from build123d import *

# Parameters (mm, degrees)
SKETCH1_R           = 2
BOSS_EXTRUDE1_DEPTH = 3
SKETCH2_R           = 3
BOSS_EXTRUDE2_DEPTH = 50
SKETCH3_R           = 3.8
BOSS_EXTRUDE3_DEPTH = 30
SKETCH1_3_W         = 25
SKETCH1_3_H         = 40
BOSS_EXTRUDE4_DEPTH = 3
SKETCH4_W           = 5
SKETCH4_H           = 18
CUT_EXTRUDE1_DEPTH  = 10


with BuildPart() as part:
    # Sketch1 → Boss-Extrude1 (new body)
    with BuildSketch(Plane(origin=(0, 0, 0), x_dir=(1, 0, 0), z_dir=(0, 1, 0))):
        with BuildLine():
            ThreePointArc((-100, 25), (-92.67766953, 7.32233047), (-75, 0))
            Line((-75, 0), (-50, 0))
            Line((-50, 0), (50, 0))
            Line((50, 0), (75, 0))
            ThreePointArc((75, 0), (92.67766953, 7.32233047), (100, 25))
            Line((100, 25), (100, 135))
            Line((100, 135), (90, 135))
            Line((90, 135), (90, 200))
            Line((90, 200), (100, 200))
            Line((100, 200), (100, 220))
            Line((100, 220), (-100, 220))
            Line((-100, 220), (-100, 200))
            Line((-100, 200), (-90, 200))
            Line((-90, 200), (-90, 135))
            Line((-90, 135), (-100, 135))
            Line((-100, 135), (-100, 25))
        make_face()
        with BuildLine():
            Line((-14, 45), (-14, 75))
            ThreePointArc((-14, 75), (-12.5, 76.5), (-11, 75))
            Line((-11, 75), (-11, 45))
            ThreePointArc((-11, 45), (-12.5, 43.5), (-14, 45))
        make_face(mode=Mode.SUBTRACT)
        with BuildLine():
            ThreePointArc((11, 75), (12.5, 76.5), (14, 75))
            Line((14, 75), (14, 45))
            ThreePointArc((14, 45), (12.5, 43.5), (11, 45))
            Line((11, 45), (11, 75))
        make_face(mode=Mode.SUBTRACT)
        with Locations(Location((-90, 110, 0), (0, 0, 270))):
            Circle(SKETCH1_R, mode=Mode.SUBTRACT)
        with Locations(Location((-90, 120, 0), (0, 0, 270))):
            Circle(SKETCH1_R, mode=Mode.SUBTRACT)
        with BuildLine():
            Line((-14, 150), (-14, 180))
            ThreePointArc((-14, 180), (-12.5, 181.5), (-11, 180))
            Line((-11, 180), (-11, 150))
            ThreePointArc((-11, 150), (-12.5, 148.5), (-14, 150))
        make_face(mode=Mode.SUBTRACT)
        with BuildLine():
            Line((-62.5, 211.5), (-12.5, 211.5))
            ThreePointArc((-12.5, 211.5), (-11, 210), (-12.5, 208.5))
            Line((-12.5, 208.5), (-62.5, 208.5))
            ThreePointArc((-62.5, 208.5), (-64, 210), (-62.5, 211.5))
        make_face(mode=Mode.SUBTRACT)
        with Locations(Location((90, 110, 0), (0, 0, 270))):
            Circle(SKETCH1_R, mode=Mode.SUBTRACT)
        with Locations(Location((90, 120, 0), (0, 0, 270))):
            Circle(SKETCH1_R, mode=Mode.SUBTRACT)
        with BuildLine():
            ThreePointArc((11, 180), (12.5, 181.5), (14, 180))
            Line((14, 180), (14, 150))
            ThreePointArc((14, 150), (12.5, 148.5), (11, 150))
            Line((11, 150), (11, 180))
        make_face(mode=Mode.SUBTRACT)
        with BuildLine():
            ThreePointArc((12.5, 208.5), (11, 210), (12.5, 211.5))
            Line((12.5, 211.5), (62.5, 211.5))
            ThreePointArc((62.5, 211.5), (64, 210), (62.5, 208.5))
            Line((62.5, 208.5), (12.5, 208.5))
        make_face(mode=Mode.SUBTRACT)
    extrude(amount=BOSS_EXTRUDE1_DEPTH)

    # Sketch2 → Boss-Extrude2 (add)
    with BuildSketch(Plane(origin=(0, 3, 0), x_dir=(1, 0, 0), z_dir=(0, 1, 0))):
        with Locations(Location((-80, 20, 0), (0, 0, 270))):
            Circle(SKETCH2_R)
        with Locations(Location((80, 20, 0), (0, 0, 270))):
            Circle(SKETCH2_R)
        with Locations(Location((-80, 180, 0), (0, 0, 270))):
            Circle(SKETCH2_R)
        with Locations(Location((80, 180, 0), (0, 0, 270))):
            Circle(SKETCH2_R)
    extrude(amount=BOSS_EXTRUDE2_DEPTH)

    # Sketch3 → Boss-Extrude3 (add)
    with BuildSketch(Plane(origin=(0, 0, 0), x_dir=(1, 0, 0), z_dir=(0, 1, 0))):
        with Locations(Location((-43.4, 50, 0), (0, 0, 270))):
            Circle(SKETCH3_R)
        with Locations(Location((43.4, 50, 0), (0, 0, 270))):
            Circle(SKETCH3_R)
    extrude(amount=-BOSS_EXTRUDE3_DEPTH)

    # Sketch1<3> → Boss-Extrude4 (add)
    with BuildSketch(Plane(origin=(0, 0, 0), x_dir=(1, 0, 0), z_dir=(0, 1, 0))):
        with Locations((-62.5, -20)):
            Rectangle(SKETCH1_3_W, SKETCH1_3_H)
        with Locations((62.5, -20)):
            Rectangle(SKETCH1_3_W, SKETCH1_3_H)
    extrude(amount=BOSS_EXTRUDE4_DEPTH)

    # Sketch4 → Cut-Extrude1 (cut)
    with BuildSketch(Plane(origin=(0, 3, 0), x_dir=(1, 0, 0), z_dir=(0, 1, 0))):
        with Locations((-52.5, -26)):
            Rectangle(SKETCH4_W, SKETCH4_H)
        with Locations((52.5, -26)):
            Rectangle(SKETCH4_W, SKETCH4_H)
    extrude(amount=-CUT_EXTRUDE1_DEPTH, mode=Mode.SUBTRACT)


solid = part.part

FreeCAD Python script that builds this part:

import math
import FreeCAD as App
import Part
import Sketcher
from FreeCAD import Vector
Q = App.Units.Quantity


def add_polygon(sketch, points):
    """Adds a closed chain of lines whose ends are joined by coincident constraints."""
    first, n = sketch.GeometryCount, len(points)
    for a, b in zip(points, points[1:] + points[:1]):
        sketch.addGeometry(Part.LineSegment(App.Vector(*a, 0), App.Vector(*b, 0)), False)
    for i in range(n):
        sketch.addConstraint(Sketcher.Constraint("Coincident", first + i, 2, first + (i + 1) % n, 1))

doc = App.newDocument("Part")
params = doc.addObject("Spreadsheet::Sheet", "Params")
for row, (alias, value) in enumerate([
    ("sketch1_diameter", "4 mm"),
    ("sketch1_radius", "25 mm"),
    ("sketch1_radius2", "1.5 mm"),
    ("sketch1_width", "150 mm"),
    ("sketch1_width2", "10 mm"),
    ("pad1_length", "3 mm"),
    ("sketch2_diameter", "6 mm"),
    ("pad2_length", "50 mm"),
    ("sketch3_diameter", "7.6 mm"),
    ("pad3_length", "30 mm"),
    ("sketch4_width", "25 mm"),
    ("sketch4_height", "40 mm"),
    ("pad4_length", "3 mm"),
    ("sketch5_width", "5 mm"),
    ("sketch5_height", "18 mm"),
    ("pocket1_length", "10 mm"),
], start=1):
    params.set(f"A{row}", alias)
    params.set(f"B{row}", "=" + value)
    params.setAlias(f"B{row}", alias)

body = doc.addObject("PartDesign::Body", "Body")

sketch1 = body.newObject("Sketcher::SketchObject", "Sketch")
sketch1.AttachmentSupport = (doc.getObject("XZ_Plane"), [""])
sketch1.MapMode = "FlatFace"
sketch1.addGeometry([
    Part.ArcOfCircle(Part.Circle(Vector(-75, -25, 0), Vector(0, 0, 1), 25), math.radians(90), math.radians(180)),
    Part.LineSegment(Vector(-75, 0, 0), Vector(75, 0, 0)),
    Part.ArcOfCircle(Part.Circle(Vector(75, -25, 0), Vector(0, 0, 1), 25), math.radians(0), math.radians(90)),
    Part.LineSegment(Vector(100, -25, 0), Vector(100, -135, 0)),
    Part.LineSegment(Vector(100, -135, 0), Vector(90, -135, 0)),
    Part.LineSegment(Vector(90, -135, 0), Vector(90, -200, 0)),
    Part.LineSegment(Vector(90, -200, 0), Vector(100, -200, 0)),
    Part.LineSegment(Vector(100, -200, 0), Vector(100, -220, 0)),
    Part.LineSegment(Vector(100, -220, 0), Vector(-100, -220, 0)),
    Part.LineSegment(Vector(-100, -220, 0), Vector(-100, -200, 0)),
    Part.LineSegment(Vector(-100, -200, 0), Vector(-90, -200, 0)),
    Part.LineSegment(Vector(-90, -200, 0), Vector(-90, -135, 0)),
    Part.LineSegment(Vector(-90, -135, 0), Vector(-100, -135, 0)),
    Part.LineSegment(Vector(-100, -135, 0), Vector(-100, -25, 0)),
    Part.ArcOfCircle(Part.Circle(Vector(-12.5, -45, 0), Vector(0, 0, 1), 1.5), math.radians(0), math.radians(180)),
    Part.LineSegment(Vector(-14, -45, 0), Vector(-14, -75, 0)),
    Part.ArcOfCircle(Part.Circle(Vector(-12.5, -75, 0), Vector(0, 0, 1), 1.5), math.radians(180), math.radians(360)),
    Part.LineSegment(Vector(-11, -75, 0), Vector(-11, -45, 0)),
    Part.Circle(Vector(-90, -110, 0), Vector(0, 0, 1), 2),
    Part.Circle(Vector(-90, -120, 0), Vector(0, 0, 1), 2),
    Part.LineSegment(Vector(11, -45, 0), Vector(11, -75, 0)),
    Part.ArcOfCircle(Part.Circle(Vector(12.5, -75, 0), Vector(0, 0, 1), 1.5), math.radians(180), math.radians(360)),
    Part.LineSegment(Vector(14, -75, 0), Vector(14, -45, 0)),
    Part.ArcOfCircle(Part.Circle(Vector(12.5, -45, 0), Vector(0, 0, 1), 1.5), math.radians(0), math.radians(180)),
    Part.Circle(Vector(90, -110, 0), Vector(0, 0, 1), 2),
    Part.Circle(Vector(90, -120, 0), Vector(0, 0, 1), 2),
    Part.ArcOfCircle(Part.Circle(Vector(-12.5, -150, 0), Vector(0, 0, 1), 1.5), math.radians(0), math.radians(180)),
    Part.LineSegment(Vector(-14, -150, 0), Vector(-14, -180, 0)),
    Part.ArcOfCircle(Part.Circle(Vector(-12.5, -180, 0), Vector(0, 0, 1), 1.5), math.radians(180), math.radians(360)),
    Part.LineSegment(Vector(-11, -180, 0), Vector(-11, -150, 0)),
    Part.ArcOfCircle(Part.Circle(Vector(-62.5, -210, 0), Vector(0, 0, 1), 1.5), math.radians(90), math.radians(270)),
    Part.LineSegment(Vector(-62.5, -211.5, 0), Vector(-12.5, -211.5, 0)),
    Part.ArcOfCircle(Part.Circle(Vector(-12.5, -210, 0), Vector(0, 0, 1), 1.5), math.radians(-90), math.radians(90)),
    Part.LineSegment(Vector(-12.5, -208.5, 0), Vector(-62.5, -208.5, 0)),
    Part.LineSegment(Vector(11, -150, 0), Vector(11, -180, 0)),
    Part.ArcOfCircle(Part.Circle(Vector(12.5, -180, 0), Vector(0, 0, 1), 1.5), math.radians(180), math.radians(360)),
    Part.LineSegment(Vector(14, -180, 0), Vector(14, -150, 0)),
    Part.ArcOfCircle(Part.Circle(Vector(12.5, -150, 0), Vector(0, 0, 1), 1.5), math.radians(0), math.radians(180)),
    Part.LineSegment(Vector(62.5, -208.5, 0), Vector(12.5, -208.5, 0)),
    Part.ArcOfCircle(Part.Circle(Vector(12.5, -210, 0), Vector(0, 0, 1), 1.5), math.radians(90), math.radians(270)),
    Part.LineSegment(Vector(12.5, -211.5, 0), Vector(62.5, -211.5, 0)),
    Part.ArcOfCircle(Part.Circle(Vector(62.5, -210, 0), Vector(0, 0, 1), 1.5), math.radians(-90), math.radians(90)),
], False)
sketch1.addConstraint([
    Sketcher.Constraint("Tangent", 0, 1, 1, 1),
    Sketcher.Constraint("Tangent", 1, 2, 2, 2),
    Sketcher.Constraint("Tangent", 2, 1, 3, 1),
    Sketcher.Constraint("Coincident", 3, 2, 4, 1),
    Sketcher.Constraint("Coincident", 4, 2, 5, 1),
    Sketcher.Constraint("Coincident", 5, 2, 6, 1),
    Sketcher.Constraint("Coincident", 6, 2, 7, 1),
    Sketcher.Constraint("Coincident", 7, 2, 8, 1),
    Sketcher.Constraint("Coincident", 8, 2, 9, 1),
    Sketcher.Constraint("Coincident", 9, 2, 10, 1),
    Sketcher.Constraint("Coincident", 10, 2, 11, 1),
    Sketcher.Constraint("Coincident", 11, 2, 12, 1),
    Sketcher.Constraint("Coincident", 12, 2, 13, 1),
    Sketcher.Constraint("Tangent", 13, 2, 0, 2),
    Sketcher.Constraint("Tangent", 14, 2, 15, 1),
    Sketcher.Constraint("Tangent", 15, 2, 16, 1),
    Sketcher.Constraint("Tangent", 16, 2, 17, 1),
    Sketcher.Constraint("Tangent", 17, 2, 14, 1),
    Sketcher.Constraint("Tangent", 20, 2, 21, 1),
    Sketcher.Constraint("Tangent", 21, 2, 22, 1),
    Sketcher.Constraint("Tangent", 22, 2, 23, 1),
    Sketcher.Constraint("Tangent", 23, 2, 20, 1),
    Sketcher.Constraint("Tangent", 26, 2, 27, 1),
    Sketcher.Constraint("Tangent", 27, 2, 28, 1),
    Sketcher.Constraint("Tangent", 28, 2, 29, 1),
    Sketcher.Constraint("Tangent", 29, 2, 26, 1),
    Sketcher.Constraint("Tangent", 30, 2, 31, 1),
    Sketcher.Constraint("Tangent", 31, 2, 32, 1),
    Sketcher.Constraint("Tangent", 32, 2, 33, 1),
    Sketcher.Constraint("Tangent", 33, 2, 30, 1),
    Sketcher.Constraint("Tangent", 34, 2, 35, 1),
    Sketcher.Constraint("Tangent", 35, 2, 36, 1),
    Sketcher.Constraint("Tangent", 36, 2, 37, 1),
    Sketcher.Constraint("Tangent", 37, 2, 34, 1),
    Sketcher.Constraint("Tangent", 38, 2, 39, 1),
    Sketcher.Constraint("Tangent", 39, 2, 40, 1),
    Sketcher.Constraint("Tangent", 40, 2, 41, 1),
    Sketcher.Constraint("Tangent", 41, 2, 38, 1),
    Sketcher.Constraint("Horizontal", 1),
    Sketcher.Constraint("Vertical", 3),
    Sketcher.Constraint("Horizontal", 4),
    Sketcher.Constraint("Vertical", 5),
    Sketcher.Constraint("Horizontal", 6),
    Sketcher.Constraint("Vertical", 7),
    Sketcher.Constraint("Horizontal", 8),
    Sketcher.Constraint("Vertical", 9),
    Sketcher.Constraint("Horizontal", 10),
    Sketcher.Constraint("Vertical", 11),
    Sketcher.Constraint("Horizontal", 12),
    Sketcher.Constraint("Vertical", 13),
    Sketcher.Constraint("Vertical", 15),
    Sketcher.Constraint("Vertical", 17),
    Sketcher.Constraint("Vertical", 20),
    Sketcher.Constraint("Vertical", 22),
    Sketcher.Constraint("Vertical", 27),
    Sketcher.Constraint("Vertical", 29),
    Sketcher.Constraint("Horizontal", 31),
    Sketcher.Constraint("Horizontal", 33),
    Sketcher.Constraint("Vertical", 34),
    Sketcher.Constraint("Vertical", 36),
    Sketcher.Constraint("Horizontal", 38),
    Sketcher.Constraint("Horizontal", 40),
    Sketcher.Constraint("Equal", 0, 2),
    Sketcher.Constraint("Equal", 18, 19),
    Sketcher.Constraint("Equal", 16, 21),
    Sketcher.Constraint("Equal", 19, 24),
    Sketcher.Constraint("Equal", 24, 25),
    Sketcher.Constraint("Equal", 23, 26),
    Sketcher.Constraint("Equal", 28, 30),
    Sketcher.Constraint("Equal", 32, 35),
    Sketcher.Constraint("Equal", 37, 39),
    Sketcher.Constraint("Symmetric", 0, 1, 1, 2, -1, 1),
    Sketcher.Constraint("Symmetric", 16, 3, 21, 3, -2),
    Sketcher.Constraint("Symmetric", 18, 3, 24, 3, -2),
    Sketcher.Constraint("Symmetric", 19, 3, 25, 3, -2),
    Sketcher.Constraint("Symmetric", 28, 3, 35, 3, -2),
    Sketcher.Constraint("Symmetric", 32, 3, 39, 3, -2),
    Sketcher.Constraint("Symmetric", 6, 2, 9, 2, -2),
    Sketcher.Constraint("Symmetric", 4, 2, 11, 2, -2),
    Sketcher.Constraint("Horizontal", 14, 3, 23, 3),
    Sketcher.Constraint("Horizontal", 26, 3, 37, 3),
    Sketcher.Constraint("Vertical", 18, 3, 19, 3),
    Sketcher.Constraint("Vertical", 16, 3, 26, 3),
    Sketcher.Constraint("Vertical", 28, 3, 32, 3),
    Sketcher.Constraint("Vertical", 25, 3, 4, 2),
    Sketcher.Constraint("Vertical", 3, 2, 6, 2),
    Sketcher.Constraint("Equal", 33, 38),
    Sketcher.Constraint("Equal", 22, 27),
    Sketcher.Constraint("Diameter", 18, Q("4 mm")),
    Sketcher.Constraint("Radius", 0, Q("25 mm")),
    Sketcher.Constraint("Radius", 14, Q("1.5 mm")),
    Sketcher.Constraint("DistanceX", 1, 1, 1, 2, Q("150 mm")),
    Sketcher.Constraint("DistanceX", 4, 2, 4, 1, Q("10 mm")),
    Sketcher.Constraint("DistanceX", 31, 1, 31, 2, Q("50 mm")),
    Sketcher.Constraint("DistanceY", 3, 2, 3, 1, Q("110 mm")),
    Sketcher.Constraint("DistanceY", 5, 2, 5, 1, Q("65 mm")),
    Sketcher.Constraint("DistanceY", 7, 2, 7, 1, Q("20 mm")),
    Sketcher.Constraint("DistanceY", 15, 2, 15, 1, Q("30 mm")),
    Sketcher.Constraint("DistanceY", 14, 3, -1, 1, Q("45 mm")),
    Sketcher.Constraint("DistanceY", 18, 3, -1, 1, Q("110 mm")),
    Sketcher.Constraint("DistanceY", 19, 3, -1, 1, Q("120 mm")),
    Sketcher.Constraint("DistanceY", 26, 3, -1, 1, Q("150 mm")),
    Sketcher.Constraint("DistanceY", 30, 3, -1, 1, Q("210 mm")),
    Sketcher.Constraint("DistanceX", 14, 2, -1, 1, Q("14 mm")),
])
sketch1.setExpression("Constraints[88]", "Params.sketch1_diameter")
sketch1.setExpression("Constraints[89]", "Params.sketch1_radius")
sketch1.setExpression("Constraints[90]", "Params.sketch1_radius2")
sketch1.setExpression("Constraints[91]", "Params.sketch1_width")
sketch1.setExpression("Constraints[92]", "Params.sketch1_width2")
pad1 = body.newObject("PartDesign::Pad", "Pad")
pad1.Profile = sketch1
pad1.setExpression("Length", "Params.pad1_length")
pad1.Reversed = True

sketch2 = body.newObject("Sketcher::SketchObject", "Sketch001")
sketch2.AttachmentSupport = (doc.getObject("XZ_Plane"), [""])
sketch2.MapMode = "FlatFace"
sketch2.AttachmentOffset = App.Placement(Vector(0, 0, -3), App.Rotation())
sketch2.addGeometry([
    Part.Circle(Vector(-80, -20, 0), Vector(0, 0, 1), 3),
    Part.Circle(Vector(80, -20, 0), Vector(0, 0, 1), 3),
    Part.Circle(Vector(-80, -180, 0), Vector(0, 0, 1), 3),
    Part.Circle(Vector(80, -180, 0), Vector(0, 0, 1), 3),
], False)
sketch2.addConstraint([
    Sketcher.Constraint("Equal", 0, 1),
    Sketcher.Constraint("Equal", 1, 2),
    Sketcher.Constraint("Equal", 2, 3),
    Sketcher.Constraint("Symmetric", 0, 3, 1, 3, -2),
    Sketcher.Constraint("Symmetric", 2, 3, 3, 3, -2),
    Sketcher.Constraint("Vertical", 0, 3, 2, 3),
    Sketcher.Constraint("Diameter", 0, Q("6 mm")),
    Sketcher.Constraint("DistanceX", 0, 3, -1, 1, Q("80 mm")),
    Sketcher.Constraint("DistanceY", 0, 3, -1, 1, Q("20 mm")),
    Sketcher.Constraint("DistanceY", 2, 3, -1, 1, Q("180 mm")),
])
sketch2.setExpression("Constraints[6]", "Params.sketch2_diameter")
pad2 = body.newObject("PartDesign::Pad", "Pad001")
pad2.Profile = sketch2
pad2.setExpression("Length", "Params.pad2_length")
pad2.Reversed = True

sketch3 = body.newObject("Sketcher::SketchObject", "Sketch002")
sketch3.AttachmentSupport = (doc.getObject("XZ_Plane"), [""])
sketch3.MapMode = "FlatFace"
sketch3.addGeometry([
    Part.Circle(Vector(-43.4, -50, 0), Vector(0, 0, 1), 3.8),
    Part.Circle(Vector(43.4, -50, 0), Vector(0, 0, 1), 3.8),
], False)
sketch3.addConstraint([
    Sketcher.Constraint("Equal", 0, 1),
    Sketcher.Constraint("Symmetric", 0, 3, 1, 3, -2),
    Sketcher.Constraint("Diameter", 0, Q("7.6 mm")),
    Sketcher.Constraint("DistanceY", 0, 3, -1, 1, Q("50 mm")),
    Sketcher.Constraint("DistanceX", 0, 3, -1, 1, Q("43.4 mm")),
])
sketch3.setExpression("Constraints[2]", "Params.sketch3_diameter")
pad3 = body.newObject("PartDesign::Pad", "Pad002")
pad3.Profile = sketch3
pad3.setExpression("Length", "Params.pad3_length")

sketch4 = body.newObject("Sketcher::SketchObject", "Sketch003")
sketch4.AttachmentSupport = (doc.getObject("XZ_Plane"), [""])
sketch4.MapMode = "FlatFace"
add_polygon(sketch4, [(-75, 0), (-75, 40), (-50, 40), (-50, 0)])
add_polygon(sketch4, [(50, 0), (50, 40), (75, 40), (75, 0)])
sketch4.addConstraint([
    Sketcher.Constraint("Vertical", 0),
    Sketcher.Constraint("Horizontal", 1),
    Sketcher.Constraint("Vertical", 2),
    Sketcher.Constraint("Horizontal", 3),
    Sketcher.Constraint("Vertical", 4),
    Sketcher.Constraint("Horizontal", 5),
    Sketcher.Constraint("Vertical", 6),
    Sketcher.Constraint("Horizontal", 7),
    Sketcher.Constraint("Symmetric", 3, 2, 6, 2, -1, 1),
    Sketcher.Constraint("Symmetric", 1, 2, 4, 2, -2),
    Sketcher.Constraint("PointOnObject", 2, 2, -1),
    Sketcher.Constraint("DistanceX", 1, 1, 1, 2, Q("25 mm")),
    Sketcher.Constraint("DistanceY", 0, 1, 0, 2, Q("40 mm")),
    Sketcher.Constraint("DistanceX", 0, 2, -1, 1, Q("75 mm")),
])
sketch4.setExpression("Constraints[19]", "Params.sketch4_width")
sketch4.setExpression("Constraints[20]", "Params.sketch4_height")
pad4 = body.newObject("PartDesign::Pad", "Pad003")
pad4.Profile = sketch4
pad4.setExpression("Length", "Params.pad4_length")
pad4.Reversed = True

sketch5 = body.newObject("Sketcher::SketchObject", "Sketch004")
sketch5.AttachmentSupport = (doc.getObject("XZ_Plane"), [""])
sketch5.MapMode = "FlatFace"
sketch5.AttachmentOffset = App.Placement(Vector(0, 0, -3), App.Rotation())
add_polygon(sketch5, [(-55, 17), (-55, 35), (-50, 35), (-50, 17)])
add_polygon(sketch5, [(50, 17), (50, 35), (55, 35), (55, 17)])
sketch5.addConstraint([
    Sketcher.Constraint("Vertical", 0),
    Sketcher.Constraint("Horizontal", 1),
    Sketcher.Constraint("Vertical", 2),
    Sketcher.Constraint("Horizontal", 3),
    Sketcher.Constraint("Vertical", 4),
    Sketcher.Constraint("Horizontal", 5),
    Sketcher.Constraint("Vertical", 6),
    Sketcher.Constraint("Horizontal", 7),
    Sketcher.Constraint("Symmetric", 1, 2, 4, 2, -2),
    Sketcher.Constraint("Symmetric", 3, 2, 6, 2, -2),
    Sketcher.Constraint("DistanceX", 1, 1, 1, 2, Q("5 mm")),
    Sketcher.Constraint("DistanceY", 0, 1, 0, 2, Q("18 mm")),
    Sketcher.Constraint("DistanceX", 0, 2, -1, 1, Q("55 mm")),
    Sketcher.Constraint("DistanceY", -1, 1, 0, 2, Q("35 mm")),
])
sketch5.setExpression("Constraints[18]", "Params.sketch5_width")
sketch5.setExpression("Constraints[19]", "Params.sketch5_height")
pocket1 = body.newObject("PartDesign::Pocket", "Pocket")
pocket1.Profile = sketch5
pocket1.setExpression("Length", "Params.pocket1_length")
pocket1.Reversed = True

doc.recompute()
